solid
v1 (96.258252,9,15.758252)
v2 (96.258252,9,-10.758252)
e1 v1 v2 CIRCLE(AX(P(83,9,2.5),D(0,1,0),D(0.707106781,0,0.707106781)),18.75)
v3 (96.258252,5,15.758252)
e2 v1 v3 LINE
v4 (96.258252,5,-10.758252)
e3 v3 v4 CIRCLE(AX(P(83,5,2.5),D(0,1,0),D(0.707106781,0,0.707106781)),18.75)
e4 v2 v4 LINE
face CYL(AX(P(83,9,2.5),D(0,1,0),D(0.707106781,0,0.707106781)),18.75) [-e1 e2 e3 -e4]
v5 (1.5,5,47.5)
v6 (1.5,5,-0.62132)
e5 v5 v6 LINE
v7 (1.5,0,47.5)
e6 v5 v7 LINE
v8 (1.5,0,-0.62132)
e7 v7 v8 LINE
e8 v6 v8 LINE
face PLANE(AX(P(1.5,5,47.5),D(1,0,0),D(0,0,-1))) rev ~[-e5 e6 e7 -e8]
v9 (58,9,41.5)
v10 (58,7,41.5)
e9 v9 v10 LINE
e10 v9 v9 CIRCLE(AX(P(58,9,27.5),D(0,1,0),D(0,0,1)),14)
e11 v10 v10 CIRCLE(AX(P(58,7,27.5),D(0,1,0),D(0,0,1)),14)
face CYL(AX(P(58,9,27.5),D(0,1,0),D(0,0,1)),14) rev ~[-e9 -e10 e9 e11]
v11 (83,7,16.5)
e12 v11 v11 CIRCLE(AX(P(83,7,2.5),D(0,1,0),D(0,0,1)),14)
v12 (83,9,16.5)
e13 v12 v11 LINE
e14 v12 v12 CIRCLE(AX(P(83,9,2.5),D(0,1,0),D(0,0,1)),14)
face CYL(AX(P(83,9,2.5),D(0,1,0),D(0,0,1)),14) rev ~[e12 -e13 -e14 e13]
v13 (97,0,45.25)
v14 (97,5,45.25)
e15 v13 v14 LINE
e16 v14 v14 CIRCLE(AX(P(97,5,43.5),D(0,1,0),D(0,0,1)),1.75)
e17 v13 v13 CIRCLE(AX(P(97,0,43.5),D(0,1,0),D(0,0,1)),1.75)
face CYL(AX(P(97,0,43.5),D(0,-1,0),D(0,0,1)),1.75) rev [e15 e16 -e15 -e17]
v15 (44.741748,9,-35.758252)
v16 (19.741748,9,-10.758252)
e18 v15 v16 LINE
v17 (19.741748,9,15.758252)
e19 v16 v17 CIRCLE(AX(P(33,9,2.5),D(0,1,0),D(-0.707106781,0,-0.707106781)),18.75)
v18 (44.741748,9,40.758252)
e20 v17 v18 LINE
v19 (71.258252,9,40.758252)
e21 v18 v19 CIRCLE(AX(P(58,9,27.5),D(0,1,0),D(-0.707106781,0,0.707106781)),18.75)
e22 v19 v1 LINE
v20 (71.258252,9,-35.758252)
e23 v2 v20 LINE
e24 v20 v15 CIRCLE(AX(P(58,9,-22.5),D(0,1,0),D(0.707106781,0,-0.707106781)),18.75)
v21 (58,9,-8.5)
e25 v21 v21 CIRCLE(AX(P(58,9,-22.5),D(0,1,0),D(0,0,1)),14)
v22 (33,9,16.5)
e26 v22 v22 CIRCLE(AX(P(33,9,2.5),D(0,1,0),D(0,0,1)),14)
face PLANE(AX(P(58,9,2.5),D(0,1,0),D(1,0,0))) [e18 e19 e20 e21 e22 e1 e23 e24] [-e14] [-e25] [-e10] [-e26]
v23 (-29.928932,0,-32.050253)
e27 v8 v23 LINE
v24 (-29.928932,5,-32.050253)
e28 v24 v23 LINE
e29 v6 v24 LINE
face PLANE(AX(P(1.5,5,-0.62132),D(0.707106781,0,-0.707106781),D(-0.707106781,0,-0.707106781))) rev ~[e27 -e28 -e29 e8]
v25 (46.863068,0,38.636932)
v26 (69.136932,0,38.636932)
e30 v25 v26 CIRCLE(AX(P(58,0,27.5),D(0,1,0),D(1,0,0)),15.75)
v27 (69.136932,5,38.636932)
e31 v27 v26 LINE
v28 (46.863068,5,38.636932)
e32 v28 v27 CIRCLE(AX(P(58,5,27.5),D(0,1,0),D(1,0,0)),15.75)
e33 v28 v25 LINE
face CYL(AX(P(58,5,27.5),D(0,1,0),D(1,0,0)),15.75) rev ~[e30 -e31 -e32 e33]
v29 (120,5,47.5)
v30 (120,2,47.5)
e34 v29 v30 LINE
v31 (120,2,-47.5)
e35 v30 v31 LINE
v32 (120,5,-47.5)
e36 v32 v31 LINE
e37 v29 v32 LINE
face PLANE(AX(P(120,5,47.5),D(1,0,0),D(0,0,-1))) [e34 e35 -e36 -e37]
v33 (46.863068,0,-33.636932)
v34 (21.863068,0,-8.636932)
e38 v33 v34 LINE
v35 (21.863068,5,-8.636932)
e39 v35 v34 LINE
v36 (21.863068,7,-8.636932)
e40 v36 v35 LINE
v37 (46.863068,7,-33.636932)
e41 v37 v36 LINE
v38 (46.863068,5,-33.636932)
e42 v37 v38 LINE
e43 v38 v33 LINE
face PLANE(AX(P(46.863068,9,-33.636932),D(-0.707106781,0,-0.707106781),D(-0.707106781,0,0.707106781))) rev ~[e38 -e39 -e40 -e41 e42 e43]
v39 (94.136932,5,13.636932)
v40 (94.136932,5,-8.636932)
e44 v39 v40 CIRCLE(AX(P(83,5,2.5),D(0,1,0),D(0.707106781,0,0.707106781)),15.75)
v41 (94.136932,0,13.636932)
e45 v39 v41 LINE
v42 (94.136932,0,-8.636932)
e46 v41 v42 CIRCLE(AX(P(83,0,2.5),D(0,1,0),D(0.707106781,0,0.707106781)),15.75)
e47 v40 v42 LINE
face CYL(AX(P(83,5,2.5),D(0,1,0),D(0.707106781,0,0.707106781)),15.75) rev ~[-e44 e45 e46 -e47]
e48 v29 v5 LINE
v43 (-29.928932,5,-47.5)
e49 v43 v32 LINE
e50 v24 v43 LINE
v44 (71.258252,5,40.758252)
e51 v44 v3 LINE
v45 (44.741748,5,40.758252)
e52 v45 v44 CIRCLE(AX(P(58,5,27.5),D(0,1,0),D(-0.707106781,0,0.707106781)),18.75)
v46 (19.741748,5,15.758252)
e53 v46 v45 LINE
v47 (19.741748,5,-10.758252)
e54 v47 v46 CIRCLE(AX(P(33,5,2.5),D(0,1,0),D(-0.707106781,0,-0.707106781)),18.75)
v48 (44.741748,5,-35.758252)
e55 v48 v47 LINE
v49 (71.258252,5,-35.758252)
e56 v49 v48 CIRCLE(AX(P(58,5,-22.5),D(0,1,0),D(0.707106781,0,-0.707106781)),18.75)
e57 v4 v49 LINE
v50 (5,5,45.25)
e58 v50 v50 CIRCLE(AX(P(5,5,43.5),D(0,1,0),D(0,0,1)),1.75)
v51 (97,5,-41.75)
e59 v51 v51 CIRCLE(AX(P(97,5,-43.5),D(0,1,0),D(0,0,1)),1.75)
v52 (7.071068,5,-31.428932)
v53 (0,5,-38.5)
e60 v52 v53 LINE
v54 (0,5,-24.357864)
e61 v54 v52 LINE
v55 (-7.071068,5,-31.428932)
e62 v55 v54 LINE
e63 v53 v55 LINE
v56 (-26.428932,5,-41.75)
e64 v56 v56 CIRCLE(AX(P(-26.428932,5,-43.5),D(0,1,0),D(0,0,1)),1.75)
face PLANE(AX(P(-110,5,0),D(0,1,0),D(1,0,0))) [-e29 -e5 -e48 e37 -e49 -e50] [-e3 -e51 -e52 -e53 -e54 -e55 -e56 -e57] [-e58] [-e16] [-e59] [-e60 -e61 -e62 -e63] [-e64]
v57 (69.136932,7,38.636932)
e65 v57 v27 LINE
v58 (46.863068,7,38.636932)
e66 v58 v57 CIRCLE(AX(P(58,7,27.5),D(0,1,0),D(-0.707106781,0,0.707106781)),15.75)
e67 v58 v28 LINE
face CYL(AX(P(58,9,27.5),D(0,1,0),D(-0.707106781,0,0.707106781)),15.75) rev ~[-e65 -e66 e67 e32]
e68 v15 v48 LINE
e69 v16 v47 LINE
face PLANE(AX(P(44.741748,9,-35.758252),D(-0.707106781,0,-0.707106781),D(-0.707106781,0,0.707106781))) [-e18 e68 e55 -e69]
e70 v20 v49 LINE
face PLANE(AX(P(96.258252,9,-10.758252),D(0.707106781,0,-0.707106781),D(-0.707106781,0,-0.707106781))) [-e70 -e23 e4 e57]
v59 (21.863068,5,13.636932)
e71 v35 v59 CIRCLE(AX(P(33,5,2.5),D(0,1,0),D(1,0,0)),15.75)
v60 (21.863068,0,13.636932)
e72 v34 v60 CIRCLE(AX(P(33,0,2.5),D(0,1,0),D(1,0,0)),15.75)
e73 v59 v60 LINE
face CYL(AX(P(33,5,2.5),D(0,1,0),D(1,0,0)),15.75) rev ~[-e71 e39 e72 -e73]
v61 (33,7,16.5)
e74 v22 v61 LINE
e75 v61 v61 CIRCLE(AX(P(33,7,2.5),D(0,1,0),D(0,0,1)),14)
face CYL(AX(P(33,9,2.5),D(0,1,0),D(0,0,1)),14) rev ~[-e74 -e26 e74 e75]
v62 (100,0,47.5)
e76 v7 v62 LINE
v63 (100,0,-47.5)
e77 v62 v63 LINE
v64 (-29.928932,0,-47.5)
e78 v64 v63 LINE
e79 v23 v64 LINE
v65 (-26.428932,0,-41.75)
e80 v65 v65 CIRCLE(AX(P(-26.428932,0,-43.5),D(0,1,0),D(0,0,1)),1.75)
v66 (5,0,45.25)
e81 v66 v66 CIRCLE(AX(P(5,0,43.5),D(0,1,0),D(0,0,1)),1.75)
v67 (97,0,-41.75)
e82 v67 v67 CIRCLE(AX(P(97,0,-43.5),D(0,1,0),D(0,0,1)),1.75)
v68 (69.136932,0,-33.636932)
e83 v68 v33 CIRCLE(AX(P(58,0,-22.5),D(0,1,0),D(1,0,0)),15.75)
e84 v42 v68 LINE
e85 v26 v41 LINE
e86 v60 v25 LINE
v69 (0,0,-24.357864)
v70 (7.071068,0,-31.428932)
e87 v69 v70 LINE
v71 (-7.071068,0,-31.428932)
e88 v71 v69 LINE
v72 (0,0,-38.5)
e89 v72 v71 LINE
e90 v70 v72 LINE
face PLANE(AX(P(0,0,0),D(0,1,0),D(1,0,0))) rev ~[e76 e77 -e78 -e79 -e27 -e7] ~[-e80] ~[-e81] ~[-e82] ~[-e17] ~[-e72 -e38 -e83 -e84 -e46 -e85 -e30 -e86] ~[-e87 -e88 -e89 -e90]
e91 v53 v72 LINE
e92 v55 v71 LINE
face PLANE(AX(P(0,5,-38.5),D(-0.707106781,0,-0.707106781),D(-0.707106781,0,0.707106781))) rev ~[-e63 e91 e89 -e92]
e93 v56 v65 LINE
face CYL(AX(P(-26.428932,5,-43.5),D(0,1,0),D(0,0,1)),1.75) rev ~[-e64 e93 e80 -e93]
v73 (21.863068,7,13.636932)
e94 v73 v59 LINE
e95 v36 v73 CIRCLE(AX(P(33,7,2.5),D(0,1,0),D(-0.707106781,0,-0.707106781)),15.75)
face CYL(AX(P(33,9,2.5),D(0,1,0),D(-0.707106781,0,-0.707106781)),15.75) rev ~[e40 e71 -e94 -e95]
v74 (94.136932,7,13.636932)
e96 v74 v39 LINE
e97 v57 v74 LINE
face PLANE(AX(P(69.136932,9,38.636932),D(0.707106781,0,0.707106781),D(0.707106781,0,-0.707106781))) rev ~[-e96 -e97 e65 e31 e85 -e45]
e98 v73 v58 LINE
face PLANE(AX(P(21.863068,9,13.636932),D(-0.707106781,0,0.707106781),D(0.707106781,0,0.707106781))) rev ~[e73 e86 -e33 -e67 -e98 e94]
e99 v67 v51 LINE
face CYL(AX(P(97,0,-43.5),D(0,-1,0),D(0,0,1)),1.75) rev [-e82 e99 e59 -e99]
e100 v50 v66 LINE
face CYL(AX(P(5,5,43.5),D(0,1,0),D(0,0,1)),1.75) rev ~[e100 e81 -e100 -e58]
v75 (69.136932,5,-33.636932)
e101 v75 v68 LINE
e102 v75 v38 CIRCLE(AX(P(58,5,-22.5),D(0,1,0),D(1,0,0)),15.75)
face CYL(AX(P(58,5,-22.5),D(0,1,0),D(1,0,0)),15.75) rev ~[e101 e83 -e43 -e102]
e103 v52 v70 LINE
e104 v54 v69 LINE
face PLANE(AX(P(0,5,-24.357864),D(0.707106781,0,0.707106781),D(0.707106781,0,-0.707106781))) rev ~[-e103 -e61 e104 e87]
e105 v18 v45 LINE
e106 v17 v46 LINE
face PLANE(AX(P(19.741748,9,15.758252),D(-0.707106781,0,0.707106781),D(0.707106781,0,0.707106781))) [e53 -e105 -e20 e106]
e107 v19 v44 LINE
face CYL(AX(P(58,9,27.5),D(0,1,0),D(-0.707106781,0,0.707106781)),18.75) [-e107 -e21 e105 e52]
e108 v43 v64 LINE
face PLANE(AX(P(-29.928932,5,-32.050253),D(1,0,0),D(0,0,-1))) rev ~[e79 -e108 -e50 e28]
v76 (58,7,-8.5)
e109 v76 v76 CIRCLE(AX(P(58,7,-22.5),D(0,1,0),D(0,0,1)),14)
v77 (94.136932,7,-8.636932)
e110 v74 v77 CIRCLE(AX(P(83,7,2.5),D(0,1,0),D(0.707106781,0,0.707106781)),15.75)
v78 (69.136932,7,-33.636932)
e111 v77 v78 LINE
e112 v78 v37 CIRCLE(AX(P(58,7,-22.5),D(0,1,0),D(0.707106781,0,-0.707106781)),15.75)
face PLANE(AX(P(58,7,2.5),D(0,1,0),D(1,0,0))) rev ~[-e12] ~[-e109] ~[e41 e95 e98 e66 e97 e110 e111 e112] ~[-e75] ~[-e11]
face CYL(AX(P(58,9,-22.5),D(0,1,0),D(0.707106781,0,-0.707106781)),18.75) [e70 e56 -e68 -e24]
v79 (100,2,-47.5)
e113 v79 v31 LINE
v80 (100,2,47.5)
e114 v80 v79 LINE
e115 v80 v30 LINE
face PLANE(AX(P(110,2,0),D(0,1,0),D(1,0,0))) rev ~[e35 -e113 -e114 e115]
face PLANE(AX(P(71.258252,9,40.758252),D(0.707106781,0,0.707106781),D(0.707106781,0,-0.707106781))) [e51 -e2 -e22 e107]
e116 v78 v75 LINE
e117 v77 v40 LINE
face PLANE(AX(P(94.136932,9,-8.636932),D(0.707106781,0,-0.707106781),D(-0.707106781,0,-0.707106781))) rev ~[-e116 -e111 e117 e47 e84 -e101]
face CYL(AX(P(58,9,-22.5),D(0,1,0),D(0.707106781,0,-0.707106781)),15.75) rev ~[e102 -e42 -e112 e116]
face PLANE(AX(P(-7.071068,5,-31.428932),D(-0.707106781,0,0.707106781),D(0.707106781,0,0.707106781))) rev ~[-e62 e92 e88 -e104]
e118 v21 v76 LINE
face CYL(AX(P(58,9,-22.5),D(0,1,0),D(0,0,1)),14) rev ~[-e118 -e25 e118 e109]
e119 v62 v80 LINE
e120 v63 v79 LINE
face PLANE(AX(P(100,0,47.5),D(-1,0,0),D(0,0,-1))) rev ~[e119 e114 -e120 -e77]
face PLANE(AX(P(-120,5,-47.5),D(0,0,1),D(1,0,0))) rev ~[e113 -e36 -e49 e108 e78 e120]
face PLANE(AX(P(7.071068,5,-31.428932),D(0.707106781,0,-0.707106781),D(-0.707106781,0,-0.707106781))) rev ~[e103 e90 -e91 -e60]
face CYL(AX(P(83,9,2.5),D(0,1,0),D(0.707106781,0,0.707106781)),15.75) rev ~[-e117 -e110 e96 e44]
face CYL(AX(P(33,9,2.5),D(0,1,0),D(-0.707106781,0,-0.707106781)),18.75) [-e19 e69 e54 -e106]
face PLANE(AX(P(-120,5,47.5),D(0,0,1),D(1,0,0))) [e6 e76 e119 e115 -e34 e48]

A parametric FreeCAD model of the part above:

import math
import FreeCAD as App
import Part
import Sketcher

V = App.Vector
Q = App.Units.Quantity


def add_polygon(sketch, points):
    """Adds a closed chain of lines whose ends are joined by coincident constraints."""
    first, n = sketch.GeometryCount, len(points)
    for a, b in zip(points, points[1:] + points[:1]):
        sketch.addGeometry(Part.LineSegment(App.Vector(*a, 0), App.Vector(*b, 0)), False)
    for i in range(n):
        sketch.addConstraint(Sketcher.Constraint("Coincident", first + i, 2, first + (i + 1) % n, 1))

doc = App.newDocument("Part")
params = doc.addObject("Spreadsheet::Sheet", "Params")
for row, (alias, value) in enumerate([
    ("sketch1_diameter", "3.5 mm"),
    ("sketch1_width", "200 mm"),
    ("sketch1_height", "95 mm"),
    ("pad1_length", "5 mm"),
    ("sketch2_diameter", "25 mm"),
    ("sketch2_radius", "15.75 mm"),
    ("pocket1_length", "5 mm"),
    ("sketch3_width", "16 mm"),
    ("sketch3_height", "37 mm"),
    ("pad2_length", "4.2 mm"),
    ("sketch4_width", "20 mm"),
    ("sketch4_height", "95 mm"),
    ("pad3_length", "3 mm"),
    ("sketch5_radius", "18.75 mm"),
    ("sketch5_radius2", "15.75 mm"),
    ("pad4_length", "4 mm"),
    ("sketch6_diameter", "28 mm"),
    ("sketch6_radius", "15.75 mm"),
    ("pad5_length", "2 mm"),
    ("sketch7_length", "10 mm"),
    ("pocket2_length", "5 mm"),
    ("sketch8_diameter", "3.5 mm"),
    ("pocket3_length", "10 mm"),
    ("sketch9_diameter", "3.5 mm"),
    ("sketch9_width", "120 mm"),
    ("sketch9_height", "95 mm"),
    ("sketch9_height2", "47.5 mm"),
    ("pocket4_length", "10 mm"),
    ("sketch10_width", "1.5 mm"),
    ("sketch10_height", "47.5 mm"),
    ("pocket5_length", "5 mm"),
], start=1):
    params.set(f"A{row}", alias)
    params.set(f"B{row}", "=" + value)
    params.setAlias(f"B{row}", alias)

body = doc.addObject("PartDesign::Body", "Body")

# Sketch on XZ plane
sketch1 = body.newObject("Sketcher::SketchObject", "Sketch")
sketch1.AttachmentSupport = (doc.getObject("XZ_Plane"), [""])
sketch1.MapMode = "FlatFace"
add_polygon(sketch1, [(-100, -47.5), (-100, 47.5), (100, 47.5), (100, -47.5)])  # lines 0-3
sketch1.addGeometry(Part.Circle(V(-96, 43.5, 0), V(0, 0, 1), 1.75), False)  # 4
sketch1.addGeometry(Part.Circle(V(97, 43.5, 0), V(0, 0, 1), 1.75), False)  # 5
sketch1.addGeometry(Part.Circle(V(-96, -43.5, 0), V(0, 0, 1), 1.75), False)  # 6
sketch1.addGeometry(Part.Circle(V(97, -43.5, 0), V(0, 0, 1), 1.75), False)  # 7
sketch1.addConstraint([
    Sketcher.Constraint("Vertical", 0),
    Sketcher.Constraint("Horizontal", 1),
    Sketcher.Constraint("Vertical", 2),
    Sketcher.Constraint("Horizontal", 3),
    Sketcher.Constraint("Equal", 4, 5),
    Sketcher.Constraint("Equal", 5, 6),
    Sketcher.Constraint("Equal", 6, 7),
    Sketcher.Constraint("Symmetric", 0, 2, 2, 2, -1, 1),
    Sketcher.Constraint("Symmetric", 4, 3, 6, 3, -1),
    Sketcher.Constraint("Symmetric", 5, 3, 7, 3, -1),
    Sketcher.Constraint("Horizontal", 4, 3, 5, 3),
    Sketcher.Constraint("Diameter", 4, Q("3.5 mm")),
    Sketcher.Constraint("DistanceX", 1, 1, 1, 2, Q("200 mm")),
    Sketcher.Constraint("DistanceY", 0, 1, 0, 2, Q("95 mm")),
    Sketcher.Constraint("DistanceX", 4, 3, -1, 1, Q("96 mm")),
    Sketcher.Constraint("DistanceX", -1, 1, 5, 3, Q("97 mm")),
    Sketcher.Constraint("DistanceY", 6, 3, 4, 3, Q("87 mm")),
])
sketch1.setExpression("Constraints[15]", "Params.sketch1_diameter")
sketch1.setExpression("Constraints[16]", "Params.sketch1_width")
sketch1.setExpression("Constraints[17]", "Params.sketch1_height")
pad1 = body.newObject("PartDesign::Pad", "Pad")
pad1.Profile = sketch1
pad1.setExpression("Length", "Params.pad1_length")
pad1.Reversed = True

# Sketch on XZ plane
sketch2 = body.newObject("Sketcher::SketchObject", "Sketch001")
sketch2.AttachmentSupport = (doc.getObject("XZ_Plane"), [""])
sketch2.MapMode = "FlatFace"
sketch2.AttachmentOffset = App.Placement(V(0, 0, -5), App.Rotation())
sketch2.addGeometry([
    Part.ArcOfCircle(Part.Circle(V(33, 2.5, 0), V(0, 0, 1), 15.75), math.radians(135), math.radians(225)),  # 0
    Part.LineSegment(V(21.863068, 13.636932, 0), V(46.863068, 38.636932, 0)),  # 1
    Part.ArcOfCircle(Part.Circle(V(58, 27.5, 0), V(0, 0, 1), 15.75), math.radians(45), math.radians(135)),  # 2
    Part.LineSegment(V(69.136932, 38.636932, 0), V(94.136932, 13.636932, 0)),  # 3
    Part.ArcOfCircle(Part.Circle(V(83, 2.5, 0), V(0, 0, 1), 15.75), math.radians(-45), math.radians(45)),  # 4
    Part.LineSegment(V(94.136932, -8.636932, 0), V(69.136932, -33.636932, 0)),  # 5
    Part.ArcOfCircle(Part.Circle(V(58, -22.5, 0), V(0, 0, 1), 15.75), math.radians(-135), math.radians(-45)),  # 6
    Part.LineSegment(V(46.863068, -33.636932, 0), V(21.863068, -8.636932, 0)),  # 7
    Part.Circle(V(-82, 27.5, 0), V(0, 0, 1), 12.5),  # 8
], False)
sketch2.addConstraint([
    Sketcher.Constraint("Tangent", 0, 1, 1, 1),
    Sketcher.Constraint("Tangent", 1, 2, 2, 2),
    Sketcher.Constraint("Tangent", 2, 1, 3, 1),
    Sketcher.Constraint("Tangent", 3, 2, 4, 2),
    Sketcher.Constraint("Tangent", 4, 1, 5, 1),
    Sketcher.Constraint("Tangent", 5, 2, 6, 2),
    Sketcher.Constraint("Tangent", 6, 1, 7, 1),
    Sketcher.Constraint("Tangent", 7, 2, 0, 2),
    Sketcher.Constraint("Equal", 0, 2),
    Sketcher.Constraint("Equal", 2, 4),
    Sketcher.Constraint("Equal", 4, 6),
    Sketcher.Constraint("Perpendicular", 1, 3),
    Sketcher.Constraint("Perpendicular", 3, 5),
    Sketcher.Constraint("Perpendicular", 5, 7),
    Sketcher.Constraint("Horizontal", 0, 3, 4, 3),
    Sketcher.Constraint("Horizontal", 2, 3, 8, 3),
    Sketcher.Constraint("Horizontal", 1, 2, 2, 1),
    Sketcher.Constraint("Diameter", 8, Q("25 mm")),
    Sketcher.Constraint("Radius", 0, Q("15.75 mm")),
    Sketcher.Constraint("DistanceX", -1, 1, 0, 3, Q("33 mm")),
    Sketcher.Constraint("DistanceX", -1, 1, 2, 3, Q("58 mm")),
    Sketcher.Constraint("DistanceX", 8, 3, -1, 1, Q("82 mm")),
    Sketcher.Constraint("DistanceY", -1, 1, 0, 3, Q("2.5 mm")),
])
sketch2.setExpression("Constraints[17]", "Params.sketch2_diameter")
sketch2.setExpression("Constraints[18]", "Params.sketch2_radius")
pocket1 = body.newObject("PartDesign::Pocket", "Pocket")
pocket1.Profile = sketch2
pocket1.setExpression("Length", "Params.pocket1_length")
pocket1.Reversed = True

# Sketch on XZ plane
sketch3 = body.newObject("Sketcher::SketchObject", "Sketch002")
sketch3.AttachmentSupport = (doc.getObject("XZ_Plane"), [""])
sketch3.MapMode = "FlatFace"
add_polygon(sketch3, [(-90.5, -1), (-90.5, -38), (-74.5, -38), (-74.5, -1)])  # lines 0-3
sketch3.addConstraint([
    Sketcher.Constraint("Vertical", 0),
    Sketcher.Constraint("Horizontal", 1),
    Sketcher.Constraint("Vertical", 2),
    Sketcher.Constraint("Horizontal", 3),
    Sketcher.Constraint("DistanceX", 1, 1, 1, 2, Q("16 mm")),
    Sketcher.Constraint("DistanceY", 0, 2, 0, 1, Q("37 mm")),
    Sketcher.Constraint("DistanceY", 0, 2, -1, 1, Q("38 mm")),
    Sketcher.Constraint("DistanceX", 0, 2, -1, 1, Q("90.5 mm")),
])
sketch3.setExpression("Constraints[8]", "Params.sketch3_width")
sketch3.setExpression("Constraints[9]", "Params.sketch3_height")
pad2 = body.newObject("PartDesign::Pad", "Pad001")
pad2.Profile = sketch3
pad2.setExpression("Length", "Params.pad2_length")

# Sketch on XZ plane
sketch4 = body.newObject("Sketcher::SketchObject", "Sketch003")
sketch4.AttachmentSupport = (doc.getObject("XZ_Plane"), [""])
sketch4.MapMode = "FlatFace"
sketch4.AttachmentOffset = App.Placement(V(0, 0, -5), App.Rotation())
add_polygon(sketch4, [(-120, -47.5), (-120, 47.5), (-100, 47.5), (-100, -47.5)])  # lines 0-3
add_polygon(sketch4, [(100, -47.5), (100, 47.5), (120, 47.5), (120, -47.5)])  # lines 4-7
sketch4.addConstraint([
    Sketcher.Constraint("Vertical", 0),
    Sketcher.Constraint("Horizontal", 1),
    Sketcher.Constraint("Vertical", 2),
    Sketcher.Constraint("Horizontal", 3),
    Sketcher.Constraint("Vertical", 4),
    Sketcher.Constraint("Horizontal", 5),
    Sketcher.Constraint("Vertical", 6),
    Sketcher.Constraint("Horizontal", 7),
    Sketcher.Constraint("Symmetric", 2, 2, 4, 2, -1, 1),
    Sketcher.Constraint("Symmetric", 0, 2, 6, 2, -1, 1),
    Sketcher.Constraint("Horizontal", 1, 2, 4, 2),
    Sketcher.Constraint("DistanceX", 1, 1, 1, 2, Q("20 mm")),
    Sketcher.Constraint("DistanceY", 0, 1, 0, 2, Q("95 mm")),
    Sketcher.Constraint("DistanceX", 0, 2, -1, 1, Q("120 mm")),
])
sketch4.setExpression("Constraints[19]", "Params.sketch4_width")
sketch4.setExpression("Constraints[20]", "Params.sketch4_height")
pad3 = body.newObject("PartDesign::Pad", "Pad002")
pad3.Profile = sketch4
pad3.setExpression("Length", "Params.pad3_length")

# Sketch on XZ plane
sketch5 = body.newObject("Sketcher::SketchObject", "Sketch004")
sketch5.AttachmentSupport = (doc.getObject("XZ_Plane"), [""])
sketch5.MapMode = "FlatFace"
sketch5.AttachmentOffset = App.Placement(V(0, 0, -9), App.Rotation())
sketch5.addGeometry([
    Part.LineSegment(V(71.258252, 40.758252, 0), V(96.258252, 15.758252, 0)),  # 0
    Part.ArcOfCircle(Part.Circle(V(83, 2.5, 0), V(0, 0, 1), 18.75), math.radians(-45), math.radians(45)),  # 1
    Part.LineSegment(V(96.258252, -10.758252, 0), V(71.258252, -35.758252, 0)),  # 2
    Part.ArcOfCircle(Part.Circle(V(58, -22.5, 0), V(0, 0, 1), 18.75), math.radians(-135), math.radians(-45)),  # 3
    Part.LineSegment(V(44.741748, -35.758252, 0), V(19.741748, -10.758252, 0)),  # 4
    Part.ArcOfCircle(Part.Circle(V(33, 2.5, 0), V(0, 0, 1), 18.75), math.radians(135), math.radians(225)),  # 5
    Part.LineSegment(V(19.741748, 15.758252, 0), V(44.741748, 40.758252, 0)),  # 6
    Part.ArcOfCircle(Part.Circle(V(58, 27.5, 0), V(0, 0, 1), 18.75), math.radians(45), math.radians(135)),  # 7
    Part.LineSegment(V(46.863068, 38.636932, 0), V(21.863068, 13.636932, 0)),  # 8
    Part.ArcOfCircle(Part.Circle(V(33, 2.5, 0), V(0, 0, 1), 15.75), math.radians(135), math.radians(225)),  # 9
    Part.LineSegment(V(21.863068, -8.636932, 0), V(46.863068, -33.636932, 0)),  # 10
    Part.ArcOfCircle(Part.Circle(V(58, -22.5, 0), V(0, 0, 1), 15.75), math.radians(-135), math.radians(-45)),  # 11
    Part.LineSegment(V(69.136932, -33.636932, 0), V(94.136932, -8.636932, 0)),  # 12
    Part.ArcOfCircle(Part.Circle(V(83, 2.5, 0), V(0, 0, 1), 15.75), math.radians(-45), math.radians(45)),  # 13
    Part.LineSegment(V(94.136932, 13.636932, 0), V(69.136932, 38.636932, 0)),  # 14
    Part.ArcOfCircle(Part.Circle(V(58, 27.5, 0), V(0, 0, 1), 15.75), math.radians(45), math.radians(135)),  # 15
], False)
sketch5.addConstraint([
    Sketcher.Constraint("Tangent", 0, 2, 1, 2),
    Sketcher.Constraint("Tangent", 1, 1, 2, 1),
    Sketcher.Constraint("Tangent", 2, 2, 3, 2),
    Sketcher.Constraint("Tangent", 3, 1, 4, 1),
    Sketcher.Constraint("Tangent", 4, 2, 5, 2),
    Sketcher.Constraint("Tangent", 5, 1, 6, 1),
    Sketcher.Constraint("Tangent", 6, 2, 7, 2),
    Sketcher.Constraint("Tangent", 7, 1, 0, 1),
    Sketcher.Constraint("Tangent", 8, 2, 9, 1),
    Sketcher.Constraint("Tangent", 9, 2, 10, 1),
    Sketcher.Constraint("Tangent", 10, 2, 11, 1),
    Sketcher.Constraint("Tangent", 11, 2, 12, 1),
    Sketcher.Constraint("Tangent", 12, 2, 13, 1),
    Sketcher.Constraint("Tangent", 13, 2, 14, 1),
    Sketcher.Constraint("Tangent", 14, 2, 15, 1),
    Sketcher.Constraint("Tangent", 15, 2, 8, 1),
    Sketcher.Constraint("Coincident", 9, 3, 5, 3),
    Sketcher.Constraint("Coincident", 11, 3, 3, 3),
    Sketcher.Constraint("Coincident", 13, 3, 1, 3),
    Sketcher.Constraint("Coincident", 15, 3, 7, 3),
    Sketcher.Constraint("Equal", 1, 3),
    Sketcher.Constraint("Equal", 3, 5),
    Sketcher.Constraint("Equal", 5, 7),
    Sketcher.Constraint("Equal", 9, 11),
    Sketcher.Constraint("Equal", 11, 13),
    Sketcher.Constraint("Equal", 13, 15),
    Sketcher.Constraint("Perpendicular", 0, 2),
    Sketcher.Constraint("Perpendicular", 2, 4),
    Sketcher.Constraint("Perpendicular", 4, 6),
    Sketcher.Constraint("Horizontal", 1, 3, 5, 3),
    Sketcher.Constraint("Horizontal", 2, 2, 3, 1),
    Sketcher.Constraint("Radius", 1, Q("18.75 mm")),
    Sketcher.Constraint("Radius", 9, Q("15.75 mm")),
    Sketcher.Constraint("DistanceX", -1, 1, 1, 3, Q("83 mm")),
    Sketcher.Constraint("DistanceX", -1, 1, 3, 3, Q("58 mm")),
    Sketcher.Constraint("DistanceY", -1, 1, 1, 3, Q("2.5 mm")),
])
sketch5.setExpression("Constraints[31]", "Params.sketch5_radius")
sketch5.setExpression("Constraints[32]", "Params.sketch5_radius2")
pad4 = body.newObject("PartDesign::Pad", "Pad003")
pad4.Profile = sketch5
pad4.setExpression("Length", "Params.pad4_length")

# Sketch on XZ plane
sketch6 = body.newObject("Sketcher::SketchObject", "Sketch005")
sketch6.AttachmentSupport = (doc.getObject("XZ_Plane"), [""])
sketch6.MapMode = "FlatFace"
sketch6.AttachmentOffset = App.Placement(V(0, 0, -9), App.Rotation())
sketch6.addGeometry([
    Part.LineSegment(V(21.863068, 13.636932, 0), V(46.863068, 38.636932, 0)),  # 0
    Part.ArcOfCircle(Part.Circle(V(58, 27.5, 0), V(0, 0, 1), 15.75), math.radians(45), math.radians(135)),  # 1
    Part.LineSegment(V(69.136932, 38.636932, 0), V(94.136932, 13.636932, 0)),  # 2
    Part.ArcOfCircle(Part.Circle(V(83, 2.5, 0), V(0, 0, 1), 15.75), math.radians(-45), math.radians(45)),  # 3
    Part.LineSegment(V(94.136932, -8.636932, 0), V(69.136932, -33.636932, 0)),  # 4
    Part.ArcOfCircle(Part.Circle(V(58, -22.5, 0), V(0, 0, 1), 15.75), math.radians(-135), math.radians(-45)),  # 5
    Part.LineSegment(V(46.863068, -33.636932, 0), V(21.863068, -8.636932, 0)),  # 6
    Part.ArcOfCircle(Part.Circle(V(33, 2.5, 0), V(0, 0, 1), 15.75), math.radians(135), math.radians(225)),  # 7
    Part.Circle(V(58, 27.5, 0), V(0, 0, 1), 14),  # 8
    Part.Circle(V(33, 2.5, 0), V(0, 0, 1), 14),  # 9
    Part.Circle(V(83, 2.5, 0), V(0, 0, 1), 14),  # 10
    Part.Circle(V(58, -22.5, 0), V(0, 0, 1), 14),  # 11
], False)
sketch6.addConstraint([
    Sketcher.Constraint("Tangent", 0, 2, 1, 2),
    Sketcher.Constraint("Tangent", 1, 1, 2, 1),
    Sketcher.Constraint("Tangent", 2, 2, 3, 2),
    Sketcher.Constraint("Tangent", 3, 1, 4, 1),
    Sketcher.Constraint("Tangent", 4, 2, 5, 2),
    Sketcher.Constraint("Tangent", 5, 1, 6, 1),
    Sketcher.Constraint("Tangent", 6, 2, 7, 2),
    Sketcher.Constraint("Tangent", 7, 1, 0, 1),
    Sketcher.Constraint("Coincident", 8, 3, 1, 3),
    Sketcher.Constraint("Coincident", 9, 3, 7, 3),
    Sketcher.Constraint("Coincident", 10, 3, 3, 3),
    Sketcher.Constraint("Coincident", 11, 3, 5, 3),
    Sketcher.Constraint("Equal", 1, 3),
    Sketcher.Constraint("Equal", 3, 5),
    Sketcher.Constraint("Equal", 5, 7),
    Sketcher.Constraint("Equal", 8, 9),
    Sketcher.Constraint("Equal", 9, 10),
    Sketcher.Constraint("Equal", 10, 11),
    Sketcher.Constraint("Perpendicular", 0, 2),
    Sketcher.Constraint("Perpendicular", 2, 4),
    Sketcher.Constraint("Perpendicular", 4, 6),
    Sketcher.Constraint("Horizontal", 3, 3, 7, 3),
    Sketcher.Constraint("Horizontal", 0, 2, 1, 1),
    Sketcher.Constraint("Diameter", 8, Q("28 mm")),
    Sketcher.Constraint("Radius", 1, Q("15.75 mm")),
    Sketcher.Constraint("DistanceX", -1, 1, 1, 3, Q("58 mm")),
    Sketcher.Constraint("DistanceX", -1, 1, 3, 3, Q("83 mm")),
    Sketcher.Constraint("DistanceY", -1, 1, 1, 3, Q("27.5 mm")),
])
sketch6.setExpression("Constraints[23]", "Params.sketch6_diameter")
sketch6.setExpression("Constraints[24]", "Params.sketch6_radius")
pad5 = body.newObject("PartDesign::Pad", "Pad004")
pad5.Profile = sketch6
pad5.setExpression("Length", "Params.pad5_length")

# Sketch on XZ plane
sketch7 = body.newObject("Sketcher::SketchObject", "Sketch006")
sketch7.AttachmentSupport = (doc.getObject("XZ_Plane"), [""])
sketch7.MapMode = "FlatFace"
sketch7.AttachmentOffset = App.Placement(V(0, 0, -5), App.Rotation())
add_polygon(sketch7, [(0, -38.5), (-7.071068, -31.428932), (0, -24.357864), (7.071068, -31.428932)])  # lines 0-3
sketch7.addConstraint([
    Sketcher.Constraint("Symmetric", 0, 2, 2, 2, -2),
    Sketcher.Constraint("PointOnObject", 1, 2, -2),
    Sketcher.Constraint("PointOnObject", 3, 2, -2),
    Sketcher.Constraint("Perpendicular", 0, 1),
    Sketcher.Constraint("Perpendicular", 1, 2),
    Sketcher.Constraint("Distance", 0, Q("10 mm")),
    Sketcher.Constraint("DistanceY", 3, 2, -1, 1, Q("38.5 mm")),
])
sketch7.setExpression("Constraints[9]", "Params.sketch7_length")
pocket2 = body.newObject("PartDesign::Pocket", "Pocket001")
pocket2.Profile = sketch7
pocket2.setExpression("Length", "Params.pocket2_length")
pocket2.Reversed = True

# Sketch on XZ plane
sketch8 = body.newObject("Sketcher::SketchObject", "Sketch007")
sketch8.AttachmentSupport = (doc.getObject("XZ_Plane"), [""])
sketch8.MapMode = "FlatFace"
sketch8.AttachmentOffset = App.Placement(V(0, 0, -5), App.Rotation())
sketch8.addGeometry([
    Part.Circle(V(-36.428932, -43.5, 0), V(0, 0, 1), 1.75),
    Part.Circle(V(-26.428932, -43.5, 0), V(0, 0, 1), 1.75),
    Part.Circle(V(5, 43.5, 0), V(0, 0, 1), 1.75),
    Part.Circle(V(-5, 43.5, 0), V(0, 0, 1), 1.75),
], False)
sketch8.addConstraint([
    Sketcher.Constraint("Equal", 0, 1),
    Sketcher.Constraint("Equal", 1, 2),
    Sketcher.Constraint("Equal", 2, 3),
    Sketcher.Constraint("Symmetric", 2, 3, 3, 3, -2),
    Sketcher.Constraint("Horizontal", 0, 3, 1, 3),
    Sketcher.Constraint("Diameter", 0, Q("3.5 mm")),
    Sketcher.Constraint("DistanceX", -1, 1, 2, 3, Q("5 mm")),
    Sketcher.Constraint("DistanceX", 0, 3, 1, 3, Q("10 mm")),
    Sketcher.Constraint("DistanceY", 1, 3, 2, 3, Q("87 mm")),
    Sketcher.Constraint("DistanceY", 0, 3, -1, 1, Q("43.5 mm")),
    Sketcher.Constraint("DistanceX", 0, 3, -1, 1, Q("36.428932 mm")),
])
sketch8.setExpression("Constraints[5]", "Params.sketch8_diameter")
pocket3 = body.newObject("PartDesign::Pocket", "Pocket002")
pocket3.Profile = sketch8
pocket3.setExpression("Length", "Params.pocket3_length")
pocket3.Reversed = True

# Sketch on XZ plane
sketch9 = body.newObject("Sketcher::SketchObject", "Sketch008")
sketch9.AttachmentSupport = (doc.getObject("XZ_Plane"), [""])
sketch9.MapMode = "FlatFace"
sketch9.AttachmentOffset = App.Placement(V(0, 0, -5), App.Rotation())
add_polygon(sketch9, [(0, 0), (-31.428932, -31.428932), (-31.428932, -47.5), (-120, -47.5), (-120, 47.5), (0, 47.5)])  # lines 0-5
sketch9.addGeometry(Part.Circle(V(-96, 43.5, 0), V(0, 0, 1), 1.75), False)  # 6
sketch9.addGeometry(Part.Circle(V(-5, 43.5, 0), V(0, 0, 1), 1.75), False)  # 7
sketch9.addGeometry(Part.Circle(V(-96, -43.5, 0), V(0, 0, 1), 1.75), False)  # 8
sketch9.addGeometry(Part.Circle(V(-36.428932, -43.5, 0), V(0, 0, 1), 1.75), False)  # 9
sketch9.addConstraint([
    Sketcher.Constraint("Vertical", 1),
    Sketcher.Constraint("Horizontal", 2),
    Sketcher.Constraint("Vertical", 3),
    Sketcher.Constraint("Horizontal", 4),
    Sketcher.Constraint("Vertical", 5),
    Sketcher.Constraint("Coincident", 5, 2, -1, 1),
    Sketcher.Constraint("Equal", 6, 7),
    Sketcher.Constraint("Equal", 7, 8),
    Sketcher.Constraint("Equal", 8, 9),
    Sketcher.Constraint("Symmetric", 6, 3, 8, 3, -1),
    Sketcher.Constraint("Horizontal", 6, 3, 7, 3),
    Sketcher.Constraint("Horizontal", 8, 3, 9, 3),
    Sketcher.Constraint("Diameter", 6, Q("3.5 mm")),
    Sketcher.Constraint("DistanceX", 4, 1, 4, 2, Q("120 mm")),
    Sketcher.Constraint("DistanceY", 3, 1, 3, 2, Q("95 mm")),
    Sketcher.Constraint("Angle", 0, Q("-135 deg")),
    Sketcher.Constraint("DistanceY", 5, 2, 5, 1, Q("47.5 mm")),
    Sketcher.Constraint("DistanceX", 6, 3, -1, 1, Q("96 mm")),
    Sketcher.Constraint("DistanceX", 7, 3, -1, 1, Q("5 mm")),
    Sketcher.Constraint("DistanceY", 8, 3, 6, 3, Q("87 mm")),
    Sketcher.Constraint("DistanceX", 9, 3, 0, 2, Q("5 mm")),
    Sketcher.Constraint("DistanceX", 2, 2, 2, 1, Q("88.571068 mm")),
])
sketch9.setExpression("Constraints[18]", "Params.sketch9_diameter")
sketch9.setExpression("Constraints[19]", "Params.sketch9_width")
sketch9.setExpression("Constraints[20]", "Params.sketch9_height")
sketch9.setExpression("Constraints[22]", "Params.sketch9_height2")
pocket4 = body.newObject("PartDesign::Pocket", "Pocket003")
pocket4.Profile = sketch9
pocket4.setExpression("Length", "Params.pocket4_length")
pocket4.Reversed = True

# Sketch on XZ plane
sketch10 = body.newObject("Sketcher::SketchObject", "Sketch009")
sketch10.AttachmentSupport = (doc.getObject("XZ_Plane"), [""])
sketch10.MapMode = "FlatFace"
sketch10.AttachmentOffset = App.Placement(V(0, 0, -5), App.Rotation())
add_polygon(sketch10, [(-29.928932, -47.5), (-31.428932, -47.5), (-31.428932, -31.428932), (0, 0), (0, 47.5), (1.5, 47.5), (1.5, -0.62132), (-29.928932, -32.050253)])  # lines 0-7
sketch10.addConstraint([
    Sketcher.Constraint("Horizontal", 0),
    Sketcher.Constraint("Vertical", 1),
    Sketcher.Constraint("Vertical", 3),
    Sketcher.Constraint("Horizontal", 4),
    Sketcher.Constraint("Vertical", 5),
    Sketcher.Constraint("Vertical", 7),
    Sketcher.Constraint("Coincident", 2, 2, -1, 1),
    Sketcher.Constraint("Parallel", 2, 6),
    Sketcher.Constraint("Equal", 0, 4),
    Sketcher.Constraint("Angle", 2, Q("45 deg")),
    Sketcher.Constraint("DistanceX", 0, 2, 0, 1, Q("1.5 mm")),
    Sketcher.Constraint("DistanceY", 3, 1, 3, 2, Q("47.5 mm")),
    Sketcher.Constraint("DistanceY", 0, 2, 3, 2, Q("95 mm")),
    Sketcher.Constraint("DistanceY", 5, 2, 5, 1, Q("48.12132 mm")),
    Sketcher.Constraint("DistanceY", 1, 1, 1, 2, Q("16.071068 mm")),
])
sketch10.setExpression("Constraints[18]", "Params.sketch10_width")
sketch10.setExpression("Constraints[19]", "Params.sketch10_height")
pocket5 = body.newObject("PartDesign::Pocket", "Pocket004")
pocket5.Profile = sketch10
pocket5.setExpression("Length", "Params.pocket5_length")
pocket5.Reversed = True

doc.recompute()
